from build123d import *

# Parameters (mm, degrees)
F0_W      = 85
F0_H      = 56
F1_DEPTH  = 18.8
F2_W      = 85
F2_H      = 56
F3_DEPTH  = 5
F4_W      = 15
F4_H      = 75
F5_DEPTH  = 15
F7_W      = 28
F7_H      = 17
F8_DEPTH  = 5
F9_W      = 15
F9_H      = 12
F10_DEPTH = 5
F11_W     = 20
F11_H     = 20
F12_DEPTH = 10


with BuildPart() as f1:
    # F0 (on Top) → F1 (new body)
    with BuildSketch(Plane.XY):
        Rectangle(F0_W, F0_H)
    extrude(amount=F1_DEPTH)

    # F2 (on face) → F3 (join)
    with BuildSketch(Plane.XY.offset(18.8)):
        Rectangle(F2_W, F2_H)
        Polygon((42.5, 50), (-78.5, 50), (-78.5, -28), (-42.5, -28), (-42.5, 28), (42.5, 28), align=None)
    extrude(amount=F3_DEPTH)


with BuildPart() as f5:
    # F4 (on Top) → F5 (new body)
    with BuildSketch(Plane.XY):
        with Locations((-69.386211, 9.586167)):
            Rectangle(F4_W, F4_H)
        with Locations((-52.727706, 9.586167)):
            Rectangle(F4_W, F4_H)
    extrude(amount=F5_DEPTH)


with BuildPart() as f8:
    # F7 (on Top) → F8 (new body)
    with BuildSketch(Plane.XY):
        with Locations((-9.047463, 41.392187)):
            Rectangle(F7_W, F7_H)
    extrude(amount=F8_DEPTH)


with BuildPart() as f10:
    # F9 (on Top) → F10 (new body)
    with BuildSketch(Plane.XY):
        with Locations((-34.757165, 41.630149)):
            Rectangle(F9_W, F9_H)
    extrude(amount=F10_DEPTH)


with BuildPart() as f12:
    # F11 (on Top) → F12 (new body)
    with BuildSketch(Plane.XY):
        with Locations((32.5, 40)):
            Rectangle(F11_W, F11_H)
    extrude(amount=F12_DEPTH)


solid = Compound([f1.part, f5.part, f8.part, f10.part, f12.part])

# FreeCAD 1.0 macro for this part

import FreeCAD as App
import Part
import Sketcher

V = App.Vector

doc = App.newDocument("Part")
body = doc.addObject("PartDesign::Body", "Body")

sketch1 = doc.addObject("Sketcher::SketchObject", "Sketch")
body.addObject(sketch1)
sketch1.AttachmentSupport = (doc.XY_Plane, [""])
sketch1.MapMode = "FlatFace"
sketch1.addGeometry(Part.LineSegment(V(-42.5, 28, 0), V(-42.5, -28, 0)), False)
sketch1.addGeometry(Part.LineSegment(V(-42.5, -28, 0), V(42.5, -28, 0)), False)
sketch1.addGeometry(Part.LineSegment(V(42.5, -28, 0), V(42.5, 28, 0)), False)
sketch1.addGeometry(Part.LineSegment(V(42.5, 28, 0), V(-42.5, 28, 0)), False)
sketch1.addConstraint(Sketcher.Constraint("Coincident", 0, 2, 1, 1))
sketch1.addConstraint(Sketcher.Constraint("Coincident", 1, 2, 2, 1))
sketch1.addConstraint(Sketcher.Constraint("Coincident", 2, 2, 3, 1))
sketch1.addConstraint(Sketcher.Constraint("Coincident", 3, 2, 0, 1))
sketch1.addConstraint(Sketcher.Constraint("Vertical", 0))
sketch1.addConstraint(Sketcher.Constraint("Horizontal", 1))
sketch1.addConstraint(Sketcher.Constraint("Vertical", 2))
sketch1.addConstraint(Sketcher.Constraint("Horizontal", 3))
sketch1.addConstraint(Sketcher.Constraint("Symmetric", 0, 2, 2, 2, -1, 1))
sketch1.addConstraint(Sketcher.Constraint("DistanceX", 1, 1, 1, 2, 85.0))
sketch1.addConstraint(Sketcher.Constraint("DistanceY", 0, 2, 0, 1, 56.0))
pad1 = doc.addObject("PartDesign::Pad", "Pad")
body.addObject(pad1)
pad1.Profile = sketch1
pad1.Length = 18.8

sketch2 = doc.addObject("Sketcher::SketchObject", "Sketch001")
body.addObject(sketch2)
sketch2.AttachmentSupport = (doc.XY_Plane, [""])
sketch2.MapMode = "FlatFace"
sketch2.AttachmentOffset = App.Placement(V(0, 0, 18.8), App.Rotation())
sketch2.addGeometry(Part.LineSegment(V(42.5, -28, 0), V(42.5, 50, 0)), False)
sketch2.addGeometry(Part.LineSegment(V(42.5, 50, 0), V(-78.5, 50, 0)), False)
sketch2.addGeometry(Part.LineSegment(V(-78.5, 50, 0), V(-78.5, -28, 0)), False)
sketch2.addGeometry(Part.LineSegment(V(-78.5, -28, 0), V(42.5, -28, 0)), False)
sketch2.addConstraint(Sketcher.Constraint("Coincident", 0, 2, 1, 1))
sketch2.addConstraint(Sketcher.Constraint("Coincident", 1, 2, 2, 1))
sketch2.addConstraint(Sketcher.Constraint("Coincident", 2, 2, 3, 1))
sketch2.addConstraint(Sketcher.Constraint("Coincident", 3, 2, 0, 1))
sketch2.addConstraint(Sketcher.Constraint("Vertical", 0))
sketch2.addConstraint(Sketcher.Constraint("Horizontal", 1))
sketch2.addConstraint(Sketcher.Constraint("Vertical", 2))
sketch2.addConstraint(Sketcher.Constraint("Horizontal", 3))
sketch2.addConstraint(Sketcher.Constraint("DistanceX", 1, 2, 1, 1, 121.0))
sketch2.addConstraint(Sketcher.Constraint("DistanceY", 0, 1, 0, 2, 78.0))
sketch2.addConstraint(Sketcher.Constraint("DistanceY", -1, 1, 0, 2, 50.0))
sketch2.addConstraint(Sketcher.Constraint("DistanceX", -1, 1, 0, 2, 42.5))
pad2 = doc.addObject("PartDesign::Pad", "Pad001")
body.addObject(pad2)
pad2.Profile = sketch2
pad2.Length = 5
body2 = doc.addObject("PartDesign::Body", "Body001")
body2.AllowCompound = True

sketch3 = doc.addObject("Sketcher::SketchObject", "Sketch002")
body2.addObject(sketch3)
sketch3.AttachmentSupport = (doc.getObject("XY_Plane001"), [""])
sketch3.MapMode = "FlatFace"
sketch3.addGeometry(Part.LineSegment(V(-76.886211, 47.086167, 0), V(-76.886211, -27.913833, 0)), False)
sketch3.addGeometry(Part.LineSegment(V(-76.886211, -27.913833, 0), V(-61.886211, -27.913833, 0)), False)
sketch3.addGeometry(Part.LineSegment(V(-61.886211, -27.913833, 0), V(-61.886211, 47.086167, 0)), False)
sketch3.addGeometry(Part.LineSegment(V(-61.886211, 47.086167, 0), V(-76.886211, 47.086167, 0)), False)
sketch3.addGeometry(Part.LineSegment(V(-60.227706, 47.086167, 0), V(-60.227706, -27.913833, 0)), False)
sketch3.addGeometry(Part.LineSegment(V(-60.227706, -27.913833, 0), V(-45.227706, -27.913833, 0)), False)
sketch3.addGeometry(Part.LineSegment(V(-45.227706, -27.913833, 0), V(-45.227706, 47.086167, 0)), False)
sketch3.addGeometry(Part.LineSegment(V(-45.227706, 47.086167, 0), V(-60.227706, 47.086167, 0)), False)
sketch3.addConstraint(Sketcher.Constraint("Coincident", 0, 2, 1, 1))
sketch3.addConstraint(Sketcher.Constraint("Coincident", 1, 2, 2, 1))
sketch3.addConstraint(Sketcher.Constraint("Coincident", 2, 2, 3, 1))
sketch3.addConstraint(Sketcher.Constraint("Coincident", 3, 2, 0, 1))
sketch3.addConstraint(Sketcher.Constraint("Coincident", 4, 2, 5, 1))
sketch3.addConstraint(Sketcher.Constraint("Coincident", 5, 2, 6, 1))
sketch3.addConstraint(Sketcher.Constraint("Coincident", 6, 2, 7, 1))
sketch3.addConstraint(Sketcher.Constraint("Coincident", 7, 2, 4, 1))
sketch3.addConstraint(Sketcher.Constraint("Vertical", 0))
sketch3.addConstraint(Sketcher.Constraint("Horizontal", 1))
sketch3.addConstraint(Sketcher.Constraint("Vertical", 2))
sketch3.addConstraint(Sketcher.Constraint("Horizontal", 3))
sketch3.addConstraint(Sketcher.Constraint("Vertical", 4))
sketch3.addConstraint(Sketcher.Constraint("Horizontal", 5))
sketch3.addConstraint(Sketcher.Constraint("Vertical", 6))
sketch3.addConstraint(Sketcher.Constraint("Horizontal", 7))
sketch3.addConstraint(Sketcher.Constraint("Horizontal", 1, 2, 4, 2))
sketch3.addConstraint(Sketcher.Constraint("Horizontal", 3, 2, 6, 2))
sketch3.addConstraint(Sketcher.Constraint("Equal", 3, 5))
sketch3.addConstraint(Sketcher.Constraint("DistanceX", 1, 1, 1, 2, 15.0))
sketch3.addConstraint(Sketcher.Constraint("DistanceY", 0, 2, 0, 1, 75.0))
sketch3.addConstraint(Sketcher.Constraint("DistanceX", 0, 2, -1, 1, 76.886211))
sketch3.addConstraint(Sketcher.Constraint("DistanceY", 0, 2, -1, 1, 27.913833))
sketch3.addConstraint(Sketcher.Constraint("DistanceX", 4, 2, -1, 1, 60.227706))
pad3 = doc.addObject("PartDesign::Pad", "Pad002")
body2.addObject(pad3)
pad3.Profile = sketch3
pad3.Length = 15
body3 = doc.addObject("PartDesign::Body", "Body002")

sketch4 = doc.addObject("Sketcher::SketchObject", "Sketch003")
body3.addObject(sketch4)
sketch4.AttachmentSupport = (doc.getObject("XY_Plane002"), [""])
sketch4.MapMode = "FlatFace"
sketch4.addGeometry(Part.LineSegment(V(-23.047463, 49.892187, 0), V(-23.047463, 32.892187, 0)), False)
sketch4.addGeometry(Part.LineSegment(V(-23.047463, 32.892187, 0), V(4.952537, 32.892187, 0)), False)
sketch4.addGeometry(Part.LineSegment(V(4.952537, 32.892187, 0), V(4.952537, 49.892187, 0)), False)
sketch4.addGeometry(Part.LineSegment(V(4.952537, 49.892187, 0), V(-23.047463, 49.892187, 0)), False)
sketch4.addConstraint(Sketcher.Constraint("Coincident", 0, 2, 1, 1))
sketch4.addConstraint(Sketcher.Constraint("Coincident", 1, 2, 2, 1))
sketch4.addConstraint(Sketcher.Constraint("Coincident", 2, 2, 3, 1))
sketch4.addConstraint(Sketcher.Constraint("Coincident", 3, 2, 0, 1))
sketch4.addConstraint(Sketcher.Constraint("Vertical", 0))
sketch4.addConstraint(Sketcher.Constraint("Horizontal", 1))
sketch4.addConstraint(Sketcher.Constraint("Vertical", 2))
sketch4.addConstraint(Sketcher.Constraint("Horizontal", 3))
sketch4.addConstraint(Sketcher.Constraint("DistanceX", 1, 1, 1, 2, 28.0))
sketch4.addConstraint(Sketcher.Constraint("DistanceY", 0, 2, 0, 1, 17.0))
sketch4.addConstraint(Sketcher.Constraint("DistanceX", 0, 2, -1, 1, 23.047463))
sketch4.addConstraint(Sketcher.Constraint("DistanceY", -1, 1, 0, 2, 32.892187))
pad4 = doc.addObject("PartDesign::Pad", "Pad003")
body3.addObject(pad4)
pad4.Profile = sketch4
pad4.Length = 5
body4 = doc.addObject("PartDesign::Body", "Body003")

sketch5 = doc.addObject("Sketcher::SketchObject", "Sketch004")
body4.addObject(sketch5)
sketch5.AttachmentSupport = (doc.getObject("XY_Plane003"), [""])
sketch5.MapMode = "FlatFace"
sketch5.addGeometry(Part.LineSegment(V(-42.257165, 47.630149, 0), V(-42.257165, 35.630149, 0)), False)
sketch5.addGeometry(Part.LineSegment(V(-42.257165, 35.630149, 0), V(-27.257165, 35.630149, 0)), False)
sketch5.addGeometry(Part.LineSegment(V(-27.257165, 35.630149, 0), V(-27.257165, 47.630149, 0)), False)
sketch5.addGeometry(Part.LineSegment(V(-27.257165, 47.630149, 0), V(-42.257165, 47.630149, 0)), False)
sketch5.addConstraint(Sketcher.Constraint("Coincident", 0, 2, 1, 1))
sketch5.addConstraint(Sketcher.Constraint("Coincident", 1, 2, 2, 1))
sketch5.addConstraint(Sketcher.Constraint("Coincident", 2, 2, 3, 1))
sketch5.addConstraint(Sketcher.Constraint("Coincident", 3, 2, 0, 1))
sketch5.addConstraint(Sketcher.Constraint("Vertical", 0))
sketch5.addConstraint(Sketcher.Constraint("Horizontal", 1))
sketch5.addConstraint(Sketcher.Constraint("Vertical", 2))
sketch5.addConstraint(Sketcher.Constraint("Horizontal", 3))
sketch5.addConstraint(Sketcher.Constraint("DistanceX", 1, 1, 1, 2, 15.0))
sketch5.addConstraint(Sketcher.Constraint("DistanceY", 0, 2, 0, 1, 12.0))
sketch5.addConstraint(Sketcher.Constraint("DistanceY", -1, 1, 0, 2, 35.630149))
sketch5.addConstraint(Sketcher.Constraint("DistanceX", 0, 2, -1, 1, 42.257165))
pad5 = doc.addObject("PartDesign::Pad", "Pad004")
body4.addObject(pad5)
pad5.Profile = sketch5
pad5.Length = 5
body5 = doc.addObject("PartDesign::Body", "Body004")

sketch6 = doc.addObject("Sketcher::SketchObject", "Sketch005")
body5.addObject(sketch6)
sketch6.AttachmentSupport = (doc.getObject("XY_Plane004"), [""])
sketch6.MapMode = "FlatFace"
sketch6.addGeometry(Part.LineSegment(V(22.5, 50, 0), V(22.5, 30, 0)), False)
sketch6.addGeometry(Part.LineSegment(V(22.5, 30, 0), V(42.5, 30, 0)), False)
sketch6.addGeometry(Part.LineSegment(V(42.5, 30, 0), V(42.5, 50, 0)), False)
sketch6.addGeometry(Part.LineSegment(V(42.5, 50, 0), V(22.5, 50, 0)), False)
sketch6.addConstraint(Sketcher.Constraint("Coincident", 0, 2, 1, 1))
sketch6.addConstraint(Sketcher.Constraint("Coincident", 1, 2, 2, 1))
sketch6.addConstraint(Sketcher.Constraint("Coincident", 2, 2, 3, 1))
sketch6.addConstraint(Sketcher.Constraint("Coincident", 3, 2, 0, 1))
sketch6.addConstraint(Sketcher.Constraint("Vertical", 0))
sketch6.addConstraint(Sketcher.Constraint("Horizontal", 1))
sketch6.addConstraint(Sketcher.Constraint("Vertical", 2))
sketch6.addConstraint(Sketcher.Constraint("Horizontal", 3))
sketch6.addConstraint(Sketcher.Constraint("Equal", 3, 0))
sketch6.addConstraint(Sketcher.Constraint("DistanceX", 1, 1, 1, 2, 20.0))
sketch6.addConstraint(Sketcher.Constraint("DistanceY", -1, 1, 0, 2, 30.0))
sketch6.addConstraint(Sketcher.Constraint("DistanceX", -1, 1, 0, 2, 22.5))
pad6 = doc.addObject("PartDesign::Pad", "Pad005")
body5.addObject(pad6)
pad6.Profile = sketch6
pad6.Length = 10

doc.recompute()
